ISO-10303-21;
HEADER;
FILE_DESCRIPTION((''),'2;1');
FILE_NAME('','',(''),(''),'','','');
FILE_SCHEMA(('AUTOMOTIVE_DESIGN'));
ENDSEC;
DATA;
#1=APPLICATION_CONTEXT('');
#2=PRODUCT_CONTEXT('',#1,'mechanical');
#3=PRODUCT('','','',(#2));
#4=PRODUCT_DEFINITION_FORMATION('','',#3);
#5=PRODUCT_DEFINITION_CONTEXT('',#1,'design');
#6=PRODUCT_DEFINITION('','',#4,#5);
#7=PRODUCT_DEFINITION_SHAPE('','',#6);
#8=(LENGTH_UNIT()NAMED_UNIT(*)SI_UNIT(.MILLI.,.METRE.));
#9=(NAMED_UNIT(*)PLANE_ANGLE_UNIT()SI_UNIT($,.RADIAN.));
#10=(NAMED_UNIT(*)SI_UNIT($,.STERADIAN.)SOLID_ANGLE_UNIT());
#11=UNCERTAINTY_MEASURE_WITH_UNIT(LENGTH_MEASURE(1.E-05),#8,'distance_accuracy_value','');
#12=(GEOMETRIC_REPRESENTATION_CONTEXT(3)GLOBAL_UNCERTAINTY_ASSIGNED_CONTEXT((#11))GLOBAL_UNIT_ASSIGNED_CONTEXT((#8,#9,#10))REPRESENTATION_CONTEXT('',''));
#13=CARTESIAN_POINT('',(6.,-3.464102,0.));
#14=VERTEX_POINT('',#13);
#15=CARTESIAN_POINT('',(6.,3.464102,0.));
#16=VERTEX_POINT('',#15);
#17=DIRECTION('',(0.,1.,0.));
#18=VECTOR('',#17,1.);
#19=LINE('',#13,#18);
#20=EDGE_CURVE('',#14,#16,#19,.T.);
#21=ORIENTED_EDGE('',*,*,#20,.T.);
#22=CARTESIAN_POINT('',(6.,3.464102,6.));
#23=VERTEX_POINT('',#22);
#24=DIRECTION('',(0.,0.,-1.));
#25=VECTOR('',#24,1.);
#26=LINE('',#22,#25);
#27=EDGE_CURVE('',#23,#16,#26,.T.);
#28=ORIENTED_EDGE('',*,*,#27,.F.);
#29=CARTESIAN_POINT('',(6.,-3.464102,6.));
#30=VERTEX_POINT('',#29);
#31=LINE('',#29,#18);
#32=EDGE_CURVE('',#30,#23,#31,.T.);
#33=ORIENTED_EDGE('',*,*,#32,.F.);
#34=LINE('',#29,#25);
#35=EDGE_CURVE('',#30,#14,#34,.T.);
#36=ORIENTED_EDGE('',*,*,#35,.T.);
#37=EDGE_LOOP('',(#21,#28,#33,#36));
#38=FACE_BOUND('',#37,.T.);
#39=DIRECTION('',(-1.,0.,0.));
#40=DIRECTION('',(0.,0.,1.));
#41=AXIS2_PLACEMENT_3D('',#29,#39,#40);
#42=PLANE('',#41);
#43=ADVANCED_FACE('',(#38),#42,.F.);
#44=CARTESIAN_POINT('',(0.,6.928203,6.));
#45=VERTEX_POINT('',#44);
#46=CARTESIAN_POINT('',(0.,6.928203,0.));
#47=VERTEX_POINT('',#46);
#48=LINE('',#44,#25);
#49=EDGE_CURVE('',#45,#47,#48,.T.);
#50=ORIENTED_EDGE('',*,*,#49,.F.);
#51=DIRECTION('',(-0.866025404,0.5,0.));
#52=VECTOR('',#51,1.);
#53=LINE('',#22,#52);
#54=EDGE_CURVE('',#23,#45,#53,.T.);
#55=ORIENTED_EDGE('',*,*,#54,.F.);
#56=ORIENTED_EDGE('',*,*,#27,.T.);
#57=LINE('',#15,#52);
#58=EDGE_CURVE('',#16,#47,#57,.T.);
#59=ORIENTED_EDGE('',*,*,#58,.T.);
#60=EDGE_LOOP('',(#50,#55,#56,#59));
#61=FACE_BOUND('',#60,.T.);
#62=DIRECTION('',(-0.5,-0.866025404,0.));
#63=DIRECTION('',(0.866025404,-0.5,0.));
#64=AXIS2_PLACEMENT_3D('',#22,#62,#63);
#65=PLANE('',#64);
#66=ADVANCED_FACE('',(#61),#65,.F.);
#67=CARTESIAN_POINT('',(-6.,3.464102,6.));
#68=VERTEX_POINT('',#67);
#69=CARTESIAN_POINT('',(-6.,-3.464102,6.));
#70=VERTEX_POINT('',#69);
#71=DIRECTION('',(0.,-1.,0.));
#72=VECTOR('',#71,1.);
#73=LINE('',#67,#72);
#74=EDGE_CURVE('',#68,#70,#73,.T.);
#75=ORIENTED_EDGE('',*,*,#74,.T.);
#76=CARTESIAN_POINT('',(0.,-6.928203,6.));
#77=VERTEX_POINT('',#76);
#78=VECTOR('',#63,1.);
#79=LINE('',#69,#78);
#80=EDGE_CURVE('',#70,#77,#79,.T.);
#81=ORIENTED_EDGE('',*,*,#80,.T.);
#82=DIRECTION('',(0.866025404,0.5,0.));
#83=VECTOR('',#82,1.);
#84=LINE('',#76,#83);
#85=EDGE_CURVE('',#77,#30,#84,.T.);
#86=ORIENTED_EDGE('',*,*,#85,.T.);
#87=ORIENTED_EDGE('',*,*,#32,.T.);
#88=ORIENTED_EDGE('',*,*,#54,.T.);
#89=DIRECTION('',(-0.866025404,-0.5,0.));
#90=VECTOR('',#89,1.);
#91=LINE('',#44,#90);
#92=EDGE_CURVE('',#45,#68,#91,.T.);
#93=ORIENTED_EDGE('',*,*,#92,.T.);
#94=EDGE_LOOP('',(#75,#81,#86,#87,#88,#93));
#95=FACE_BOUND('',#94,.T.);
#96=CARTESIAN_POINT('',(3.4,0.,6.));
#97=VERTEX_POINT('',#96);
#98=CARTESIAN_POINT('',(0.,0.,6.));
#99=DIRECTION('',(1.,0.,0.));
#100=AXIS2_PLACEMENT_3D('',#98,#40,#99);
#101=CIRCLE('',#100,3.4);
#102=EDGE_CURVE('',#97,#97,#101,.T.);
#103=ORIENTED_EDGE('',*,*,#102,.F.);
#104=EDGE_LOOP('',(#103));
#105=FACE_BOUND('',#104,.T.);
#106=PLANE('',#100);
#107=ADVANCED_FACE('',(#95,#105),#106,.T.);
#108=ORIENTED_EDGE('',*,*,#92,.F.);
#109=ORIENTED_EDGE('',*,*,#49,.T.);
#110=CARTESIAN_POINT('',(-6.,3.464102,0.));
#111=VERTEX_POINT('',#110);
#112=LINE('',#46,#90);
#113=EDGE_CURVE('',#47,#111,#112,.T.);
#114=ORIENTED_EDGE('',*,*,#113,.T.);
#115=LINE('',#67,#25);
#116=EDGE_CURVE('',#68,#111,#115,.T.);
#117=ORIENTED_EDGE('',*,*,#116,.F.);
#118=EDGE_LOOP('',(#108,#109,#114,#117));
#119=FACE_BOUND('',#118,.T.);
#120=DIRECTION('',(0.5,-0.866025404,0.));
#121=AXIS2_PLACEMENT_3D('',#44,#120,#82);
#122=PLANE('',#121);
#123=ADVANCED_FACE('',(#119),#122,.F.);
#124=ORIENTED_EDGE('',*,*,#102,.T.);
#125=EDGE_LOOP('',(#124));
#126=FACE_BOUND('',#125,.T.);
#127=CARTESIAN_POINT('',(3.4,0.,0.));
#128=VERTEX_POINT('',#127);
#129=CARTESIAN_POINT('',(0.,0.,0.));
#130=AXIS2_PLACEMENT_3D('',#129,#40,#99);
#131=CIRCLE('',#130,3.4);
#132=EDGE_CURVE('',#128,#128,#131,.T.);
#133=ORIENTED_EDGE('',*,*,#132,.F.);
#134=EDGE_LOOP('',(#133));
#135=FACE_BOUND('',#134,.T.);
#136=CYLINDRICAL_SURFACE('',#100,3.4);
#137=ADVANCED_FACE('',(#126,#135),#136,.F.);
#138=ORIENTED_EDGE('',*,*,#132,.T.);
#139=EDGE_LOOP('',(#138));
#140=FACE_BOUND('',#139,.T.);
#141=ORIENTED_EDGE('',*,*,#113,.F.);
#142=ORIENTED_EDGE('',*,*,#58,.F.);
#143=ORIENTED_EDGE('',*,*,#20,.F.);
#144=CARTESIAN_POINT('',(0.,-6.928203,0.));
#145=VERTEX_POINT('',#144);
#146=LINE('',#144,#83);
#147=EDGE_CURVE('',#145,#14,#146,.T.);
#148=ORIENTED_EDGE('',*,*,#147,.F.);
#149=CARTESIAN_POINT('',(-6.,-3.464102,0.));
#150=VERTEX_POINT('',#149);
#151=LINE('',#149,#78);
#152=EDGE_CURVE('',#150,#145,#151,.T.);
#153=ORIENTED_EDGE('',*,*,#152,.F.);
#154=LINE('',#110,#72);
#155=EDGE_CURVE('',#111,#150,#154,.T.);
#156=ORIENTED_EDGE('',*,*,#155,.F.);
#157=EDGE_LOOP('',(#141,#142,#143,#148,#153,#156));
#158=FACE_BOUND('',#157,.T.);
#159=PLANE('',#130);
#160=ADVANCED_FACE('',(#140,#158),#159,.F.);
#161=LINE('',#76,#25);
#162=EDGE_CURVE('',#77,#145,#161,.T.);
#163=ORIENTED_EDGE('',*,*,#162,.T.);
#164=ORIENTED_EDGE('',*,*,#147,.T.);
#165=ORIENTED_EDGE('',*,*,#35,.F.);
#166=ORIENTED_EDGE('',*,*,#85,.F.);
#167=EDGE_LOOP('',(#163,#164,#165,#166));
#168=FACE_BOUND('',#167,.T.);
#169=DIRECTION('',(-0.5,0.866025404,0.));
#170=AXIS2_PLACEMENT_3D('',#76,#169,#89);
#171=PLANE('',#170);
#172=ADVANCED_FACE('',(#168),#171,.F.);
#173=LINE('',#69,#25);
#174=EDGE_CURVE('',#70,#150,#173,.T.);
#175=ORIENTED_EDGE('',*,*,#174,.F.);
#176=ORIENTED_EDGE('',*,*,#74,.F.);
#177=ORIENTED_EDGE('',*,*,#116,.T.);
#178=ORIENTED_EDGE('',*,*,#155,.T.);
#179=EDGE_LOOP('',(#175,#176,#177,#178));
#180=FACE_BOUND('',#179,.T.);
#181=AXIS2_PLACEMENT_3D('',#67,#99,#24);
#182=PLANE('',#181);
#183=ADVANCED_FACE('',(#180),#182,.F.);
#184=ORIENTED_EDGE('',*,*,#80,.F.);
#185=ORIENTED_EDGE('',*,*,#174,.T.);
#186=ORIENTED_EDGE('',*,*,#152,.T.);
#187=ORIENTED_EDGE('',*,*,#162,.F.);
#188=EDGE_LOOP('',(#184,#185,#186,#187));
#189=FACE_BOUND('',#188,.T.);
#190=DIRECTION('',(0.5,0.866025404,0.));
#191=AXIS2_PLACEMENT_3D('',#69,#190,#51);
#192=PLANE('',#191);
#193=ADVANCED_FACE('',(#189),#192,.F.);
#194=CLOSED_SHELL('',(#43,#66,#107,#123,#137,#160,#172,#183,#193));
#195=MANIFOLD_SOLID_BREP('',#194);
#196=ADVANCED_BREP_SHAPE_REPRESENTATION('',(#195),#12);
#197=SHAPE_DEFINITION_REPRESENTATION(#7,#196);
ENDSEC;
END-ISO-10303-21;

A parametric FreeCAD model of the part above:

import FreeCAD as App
import Part
import Sketcher

V = App.Vector
Q = App.Units.Quantity

doc = App.newDocument("Part")
body = doc.addObject("PartDesign::Body", "Body")

# Sketch on XY plane
sketch1 = body.newObject("Sketcher::SketchObject", "Sketch")
sketch1.AttachmentSupport = (doc.getObject("XY_Plane"), [""])
sketch1.MapMode = "FlatFace"
sketch1.addGeometry([
    Part.LineSegment(V(6, -3, 0), V(6, 3, 0)),  # 0
    Part.LineSegment(V(6, 3, 0), V(0, 7, 0)),  # 1
    Part.LineSegment(V(0, 7, 0), V(-6, 3, 0)),  # 2
    Part.LineSegment(V(-6, 3, 0), V(-6, -3, 0)),  # 3
    Part.LineSegment(V(-6, -3, 0), V(0, -7, 0)),  # 4
    Part.LineSegment(V(0, -7, 0), V(6, -3, 0)),  # 5
], False)
sketch1.addConstraint([
    Sketcher.Constraint("Coincident", 0, 2, 1, 1),
    Sketcher.Constraint("Coincident", 1, 2, 2, 1),
    Sketcher.Constraint("Coincident", 2, 2, 3, 1),
    Sketcher.Constraint("Coincident", 3, 2, 4, 1),
    Sketcher.Constraint("Coincident", 4, 2, 5, 1),
    Sketcher.Constraint("Coincident", 5, 2, 0, 1),
    Sketcher.Constraint("Vertical", 0),
    Sketcher.Constraint("Vertical", 3),
    Sketcher.Constraint("Symmetric", 0, 2, 3, 2, -1, 1),
    Sketcher.Constraint("Symmetric", 1, 2, 4, 2, -1, 1),
    Sketcher.Constraint("PointOnObject", 1, 2, -2),
    Sketcher.Constraint("Parallel", 2, 5),
    Sketcher.Constraint("Horizontal", 0, 2, 2, 2),
    Sketcher.Constraint("Angle", 1, Q("150 deg")),
    Sketcher.Constraint("DistanceX", -1, 1, 0, 2, 6.0),
    Sketcher.Constraint("DistanceY", -1, 1, 0, 2, 3.464102),
])
pad1 = body.newObject("PartDesign::Pad", "Pad")
pad1.Profile = sketch1
pad1.Length = 6

# Sketch on XY plane
sketch2 = body.newObject("Sketcher::SketchObject", "Sketch001")
sketch2.AttachmentSupport = (doc.getObject("XY_Plane"), [""])
sketch2.MapMode = "FlatFace"
sketch2.AttachmentOffset = App.Placement(V(0, 0, 6), App.Rotation())
sketch2.addGeometry(Part.Circle(V(0, 0, 0), V(0, 0, 1), 3.4), False)
sketch2.addConstraint([
    Sketcher.Constraint("Coincident", 0, 3, -1, 1),
    Sketcher.Constraint("Diameter", 0, 6.8),
])
doc.recompute()
hole = body.newObject("PartDesign::Hole", "Hole")
hole.Profile = sketch2
hole.ThreadType = "None"
hole.Diameter = 6.8
hole.DepthType = "ThroughAll"

doc.recompute()
